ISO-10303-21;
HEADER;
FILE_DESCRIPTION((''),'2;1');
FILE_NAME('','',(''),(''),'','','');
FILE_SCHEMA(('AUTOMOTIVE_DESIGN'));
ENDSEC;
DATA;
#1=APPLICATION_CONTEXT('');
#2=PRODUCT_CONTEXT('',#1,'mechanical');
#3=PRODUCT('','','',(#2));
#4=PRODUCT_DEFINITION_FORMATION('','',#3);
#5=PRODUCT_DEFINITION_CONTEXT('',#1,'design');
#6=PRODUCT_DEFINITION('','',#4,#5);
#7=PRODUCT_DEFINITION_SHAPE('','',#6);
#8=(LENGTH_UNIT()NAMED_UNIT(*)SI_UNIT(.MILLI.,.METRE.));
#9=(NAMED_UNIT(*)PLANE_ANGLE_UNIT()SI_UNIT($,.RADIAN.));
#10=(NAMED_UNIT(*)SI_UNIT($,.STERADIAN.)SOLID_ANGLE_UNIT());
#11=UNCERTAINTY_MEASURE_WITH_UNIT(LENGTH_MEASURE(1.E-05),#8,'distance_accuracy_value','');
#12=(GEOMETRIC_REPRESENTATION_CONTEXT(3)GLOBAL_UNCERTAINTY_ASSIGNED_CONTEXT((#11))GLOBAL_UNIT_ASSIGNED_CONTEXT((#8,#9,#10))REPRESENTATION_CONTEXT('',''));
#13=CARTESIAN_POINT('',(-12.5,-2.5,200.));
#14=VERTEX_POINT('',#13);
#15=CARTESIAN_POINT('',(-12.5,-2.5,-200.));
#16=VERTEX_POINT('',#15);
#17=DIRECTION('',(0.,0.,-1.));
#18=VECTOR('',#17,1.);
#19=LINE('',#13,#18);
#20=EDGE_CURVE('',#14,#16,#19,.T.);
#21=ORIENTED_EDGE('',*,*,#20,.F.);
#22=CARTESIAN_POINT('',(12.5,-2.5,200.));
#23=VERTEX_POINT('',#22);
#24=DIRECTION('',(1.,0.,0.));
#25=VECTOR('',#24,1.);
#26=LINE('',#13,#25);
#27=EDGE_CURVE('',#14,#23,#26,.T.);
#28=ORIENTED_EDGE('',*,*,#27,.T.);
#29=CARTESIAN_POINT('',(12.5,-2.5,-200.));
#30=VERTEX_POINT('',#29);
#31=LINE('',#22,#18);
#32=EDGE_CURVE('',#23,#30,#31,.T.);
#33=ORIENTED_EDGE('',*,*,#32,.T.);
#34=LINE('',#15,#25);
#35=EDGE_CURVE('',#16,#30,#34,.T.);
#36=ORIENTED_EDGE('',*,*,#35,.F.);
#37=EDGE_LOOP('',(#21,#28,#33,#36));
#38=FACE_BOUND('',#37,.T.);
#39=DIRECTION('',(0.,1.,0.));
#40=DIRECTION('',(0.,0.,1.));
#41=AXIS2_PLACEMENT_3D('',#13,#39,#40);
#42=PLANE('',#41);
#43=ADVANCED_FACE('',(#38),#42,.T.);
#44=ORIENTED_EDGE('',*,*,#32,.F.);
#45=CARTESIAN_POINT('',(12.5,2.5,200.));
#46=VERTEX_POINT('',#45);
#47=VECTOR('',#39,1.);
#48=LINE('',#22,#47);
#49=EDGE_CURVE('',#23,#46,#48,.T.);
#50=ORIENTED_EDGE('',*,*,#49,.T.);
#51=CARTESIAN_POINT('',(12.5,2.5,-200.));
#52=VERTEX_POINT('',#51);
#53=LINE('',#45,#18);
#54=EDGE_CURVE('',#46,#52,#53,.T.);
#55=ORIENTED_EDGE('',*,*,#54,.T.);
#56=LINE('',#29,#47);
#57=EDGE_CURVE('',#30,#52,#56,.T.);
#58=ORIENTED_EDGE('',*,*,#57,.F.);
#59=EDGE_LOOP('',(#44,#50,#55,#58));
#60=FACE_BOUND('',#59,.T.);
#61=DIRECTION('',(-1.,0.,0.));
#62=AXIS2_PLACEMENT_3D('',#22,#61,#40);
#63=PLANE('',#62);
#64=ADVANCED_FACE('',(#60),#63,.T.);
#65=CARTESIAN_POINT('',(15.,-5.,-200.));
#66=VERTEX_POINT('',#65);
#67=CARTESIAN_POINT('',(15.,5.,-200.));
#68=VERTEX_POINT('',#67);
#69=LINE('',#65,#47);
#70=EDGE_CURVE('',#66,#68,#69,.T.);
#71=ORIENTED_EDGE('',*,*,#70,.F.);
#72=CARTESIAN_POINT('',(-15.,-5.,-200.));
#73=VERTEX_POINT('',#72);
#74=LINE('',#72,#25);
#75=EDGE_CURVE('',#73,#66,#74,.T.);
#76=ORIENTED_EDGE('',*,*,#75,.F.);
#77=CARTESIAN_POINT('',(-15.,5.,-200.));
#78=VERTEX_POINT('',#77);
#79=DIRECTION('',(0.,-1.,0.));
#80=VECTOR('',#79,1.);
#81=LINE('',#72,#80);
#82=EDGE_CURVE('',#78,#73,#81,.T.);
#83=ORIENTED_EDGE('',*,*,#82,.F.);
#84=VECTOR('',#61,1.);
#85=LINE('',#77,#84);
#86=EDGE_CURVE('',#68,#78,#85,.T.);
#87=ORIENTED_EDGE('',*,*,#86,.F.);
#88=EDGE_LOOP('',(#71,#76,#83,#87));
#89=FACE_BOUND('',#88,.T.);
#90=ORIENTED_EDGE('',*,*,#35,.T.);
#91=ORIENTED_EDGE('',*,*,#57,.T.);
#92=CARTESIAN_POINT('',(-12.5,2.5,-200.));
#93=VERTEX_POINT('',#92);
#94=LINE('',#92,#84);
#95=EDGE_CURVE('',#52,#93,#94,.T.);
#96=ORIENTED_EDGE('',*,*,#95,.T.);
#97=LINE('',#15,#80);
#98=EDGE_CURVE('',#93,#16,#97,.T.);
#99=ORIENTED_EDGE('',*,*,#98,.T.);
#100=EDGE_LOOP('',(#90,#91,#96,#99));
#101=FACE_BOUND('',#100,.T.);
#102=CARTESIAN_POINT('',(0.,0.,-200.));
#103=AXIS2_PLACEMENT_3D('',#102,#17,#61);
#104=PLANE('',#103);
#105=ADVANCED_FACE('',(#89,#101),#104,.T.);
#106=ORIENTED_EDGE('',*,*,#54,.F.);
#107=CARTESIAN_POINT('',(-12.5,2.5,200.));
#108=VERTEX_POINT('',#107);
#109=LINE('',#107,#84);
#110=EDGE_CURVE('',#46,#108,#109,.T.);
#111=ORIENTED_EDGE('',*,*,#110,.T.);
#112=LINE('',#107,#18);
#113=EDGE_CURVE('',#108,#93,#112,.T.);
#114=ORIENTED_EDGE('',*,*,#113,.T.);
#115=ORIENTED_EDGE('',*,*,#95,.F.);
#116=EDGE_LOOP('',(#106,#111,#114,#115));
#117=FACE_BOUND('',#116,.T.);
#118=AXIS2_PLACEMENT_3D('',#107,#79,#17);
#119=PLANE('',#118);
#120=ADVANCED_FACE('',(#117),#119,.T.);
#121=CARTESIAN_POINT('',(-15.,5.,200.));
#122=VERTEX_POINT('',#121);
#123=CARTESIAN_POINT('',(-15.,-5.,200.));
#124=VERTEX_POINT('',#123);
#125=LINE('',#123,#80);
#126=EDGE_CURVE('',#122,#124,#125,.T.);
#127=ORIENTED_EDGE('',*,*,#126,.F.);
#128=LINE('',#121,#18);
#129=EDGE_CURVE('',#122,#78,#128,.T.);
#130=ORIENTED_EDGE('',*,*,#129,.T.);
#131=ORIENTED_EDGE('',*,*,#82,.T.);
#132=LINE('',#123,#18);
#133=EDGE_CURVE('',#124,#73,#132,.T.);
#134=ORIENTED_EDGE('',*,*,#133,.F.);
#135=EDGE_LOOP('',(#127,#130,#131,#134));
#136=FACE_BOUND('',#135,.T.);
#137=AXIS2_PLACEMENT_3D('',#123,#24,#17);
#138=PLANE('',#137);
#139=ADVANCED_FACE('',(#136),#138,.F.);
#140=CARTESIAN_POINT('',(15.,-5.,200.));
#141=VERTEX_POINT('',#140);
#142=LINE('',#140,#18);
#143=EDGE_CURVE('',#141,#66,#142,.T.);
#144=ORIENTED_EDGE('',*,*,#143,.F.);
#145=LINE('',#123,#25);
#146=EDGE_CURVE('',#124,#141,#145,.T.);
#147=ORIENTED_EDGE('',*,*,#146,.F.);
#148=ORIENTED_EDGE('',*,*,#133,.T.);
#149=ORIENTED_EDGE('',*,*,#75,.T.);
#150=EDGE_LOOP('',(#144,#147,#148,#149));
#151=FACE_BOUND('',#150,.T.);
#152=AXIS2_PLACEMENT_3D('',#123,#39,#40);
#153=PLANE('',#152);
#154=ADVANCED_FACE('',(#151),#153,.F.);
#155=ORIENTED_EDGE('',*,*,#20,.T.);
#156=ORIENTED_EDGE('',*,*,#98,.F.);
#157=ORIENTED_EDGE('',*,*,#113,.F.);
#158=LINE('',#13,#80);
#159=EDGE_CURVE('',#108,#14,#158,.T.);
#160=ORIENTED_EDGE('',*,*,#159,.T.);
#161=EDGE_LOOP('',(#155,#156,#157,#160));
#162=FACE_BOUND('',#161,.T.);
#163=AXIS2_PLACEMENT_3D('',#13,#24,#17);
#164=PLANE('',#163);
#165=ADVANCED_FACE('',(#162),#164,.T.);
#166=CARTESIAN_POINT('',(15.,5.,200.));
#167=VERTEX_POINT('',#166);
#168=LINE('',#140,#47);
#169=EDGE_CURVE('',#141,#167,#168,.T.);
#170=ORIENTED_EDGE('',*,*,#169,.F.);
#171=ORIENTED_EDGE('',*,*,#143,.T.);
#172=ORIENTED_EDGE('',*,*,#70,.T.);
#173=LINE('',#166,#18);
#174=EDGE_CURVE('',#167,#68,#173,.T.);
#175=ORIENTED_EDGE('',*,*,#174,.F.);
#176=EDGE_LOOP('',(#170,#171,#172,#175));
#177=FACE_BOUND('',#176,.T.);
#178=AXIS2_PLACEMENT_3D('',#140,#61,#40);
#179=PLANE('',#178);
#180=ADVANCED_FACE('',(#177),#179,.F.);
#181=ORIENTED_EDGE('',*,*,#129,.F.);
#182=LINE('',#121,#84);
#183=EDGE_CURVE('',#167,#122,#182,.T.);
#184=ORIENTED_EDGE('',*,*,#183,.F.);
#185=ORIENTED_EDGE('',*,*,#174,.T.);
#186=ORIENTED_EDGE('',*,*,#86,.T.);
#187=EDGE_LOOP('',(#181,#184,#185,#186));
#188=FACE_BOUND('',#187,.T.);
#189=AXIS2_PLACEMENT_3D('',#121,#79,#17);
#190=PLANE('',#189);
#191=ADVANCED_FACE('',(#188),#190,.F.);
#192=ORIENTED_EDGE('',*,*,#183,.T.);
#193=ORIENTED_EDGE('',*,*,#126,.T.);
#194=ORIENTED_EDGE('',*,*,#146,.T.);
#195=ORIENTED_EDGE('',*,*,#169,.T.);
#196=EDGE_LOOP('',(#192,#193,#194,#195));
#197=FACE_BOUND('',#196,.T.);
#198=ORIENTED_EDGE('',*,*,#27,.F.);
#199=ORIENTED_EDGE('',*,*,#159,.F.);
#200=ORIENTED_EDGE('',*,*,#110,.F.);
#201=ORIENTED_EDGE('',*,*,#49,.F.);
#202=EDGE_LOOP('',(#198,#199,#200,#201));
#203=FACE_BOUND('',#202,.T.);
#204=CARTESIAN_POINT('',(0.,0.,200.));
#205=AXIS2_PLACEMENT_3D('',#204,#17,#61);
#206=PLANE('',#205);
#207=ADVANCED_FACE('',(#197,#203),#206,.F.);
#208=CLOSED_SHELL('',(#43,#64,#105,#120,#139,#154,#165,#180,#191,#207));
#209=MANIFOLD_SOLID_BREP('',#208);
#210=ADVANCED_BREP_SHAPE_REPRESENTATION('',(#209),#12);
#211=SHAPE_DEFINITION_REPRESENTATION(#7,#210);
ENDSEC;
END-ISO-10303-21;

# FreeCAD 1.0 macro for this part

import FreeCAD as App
import Part
import Sketcher
Q = App.Units.Quantity

doc = App.newDocument("Part")
body = doc.addObject("PartDesign::Body", "Body")

# Sketch on XY plane
sketch1 = doc.addObject("Sketcher::SketchObject", "Sketch")
body.addObject(sketch1)
sketch1.AttachmentSupport = (doc.XY_Plane, [""])
sketch1.MapMode = "FlatFace"
sketch1.addGeometry([
    Part.LineSegment(App.Vector(-15, 5, 0), App.Vector(-15, -5, 0)),  # 0
    Part.LineSegment(App.Vector(-15, -5, 0), App.Vector(15, -5, 0)),  # 1
    Part.LineSegment(App.Vector(15, -5, 0), App.Vector(15, 5, 0)),  # 2
    Part.LineSegment(App.Vector(15, 5, 0), App.Vector(-15, 5, 0)),  # 3
    Part.LineSegment(App.Vector(12, -2, 0), App.Vector(-12, -2, 0)),  # 4
    Part.LineSegment(App.Vector(-12, -2, 0), App.Vector(-12, 2, 0)),  # 5
    Part.LineSegment(App.Vector(-12, 2, 0), App.Vector(12, 2, 0)),  # 6
    Part.LineSegment(App.Vector(12, 2, 0), App.Vector(12, -2, 0)),  # 7
], False)
sketch1.addConstraint([
    Sketcher.Constraint("Coincident", 0, 2, 1, 1),
    Sketcher.Constraint("Coincident", 1, 2, 2, 1),
    Sketcher.Constraint("Coincident", 2, 2, 3, 1),
    Sketcher.Constraint("Coincident", 3, 2, 0, 1),
    Sketcher.Constraint("Coincident", 4, 2, 5, 1),
    Sketcher.Constraint("Coincident", 5, 2, 6, 1),
    Sketcher.Constraint("Coincident", 6, 2, 7, 1),
    Sketcher.Constraint("Coincident", 7, 2, 4, 1),
    Sketcher.Constraint("Vertical", 0),
    Sketcher.Constraint("Horizontal", 1),
    Sketcher.Constraint("Vertical", 2),
    Sketcher.Constraint("Horizontal", 3),
    Sketcher.Constraint("Horizontal", 4),
    Sketcher.Constraint("Vertical", 5),
    Sketcher.Constraint("Horizontal", 6),
    Sketcher.Constraint("Vertical", 7),
    Sketcher.Constraint("Symmetric", 0, 2, 2, 2, -1, 1),
    Sketcher.Constraint("Symmetric", 4, 2, 6, 2, -1, 1),
    Sketcher.Constraint("DistanceX", 1, 1, 1, 2, Q("30 mm")),
    Sketcher.Constraint("DistanceX", 4, 2, 4, 1, Q("25 mm")),
    Sketcher.Constraint("DistanceY", 0, 2, 0, 1, Q("10 mm")),
    Sketcher.Constraint("DistanceY", 5, 1, 5, 2, Q("5 mm")),
])
pad1 = doc.addObject("PartDesign::Pad", "Pad")
body.addObject(pad1)
pad1.Profile = sketch1
pad1.Length = 400
pad1.Midplane = True

doc.recompute()
